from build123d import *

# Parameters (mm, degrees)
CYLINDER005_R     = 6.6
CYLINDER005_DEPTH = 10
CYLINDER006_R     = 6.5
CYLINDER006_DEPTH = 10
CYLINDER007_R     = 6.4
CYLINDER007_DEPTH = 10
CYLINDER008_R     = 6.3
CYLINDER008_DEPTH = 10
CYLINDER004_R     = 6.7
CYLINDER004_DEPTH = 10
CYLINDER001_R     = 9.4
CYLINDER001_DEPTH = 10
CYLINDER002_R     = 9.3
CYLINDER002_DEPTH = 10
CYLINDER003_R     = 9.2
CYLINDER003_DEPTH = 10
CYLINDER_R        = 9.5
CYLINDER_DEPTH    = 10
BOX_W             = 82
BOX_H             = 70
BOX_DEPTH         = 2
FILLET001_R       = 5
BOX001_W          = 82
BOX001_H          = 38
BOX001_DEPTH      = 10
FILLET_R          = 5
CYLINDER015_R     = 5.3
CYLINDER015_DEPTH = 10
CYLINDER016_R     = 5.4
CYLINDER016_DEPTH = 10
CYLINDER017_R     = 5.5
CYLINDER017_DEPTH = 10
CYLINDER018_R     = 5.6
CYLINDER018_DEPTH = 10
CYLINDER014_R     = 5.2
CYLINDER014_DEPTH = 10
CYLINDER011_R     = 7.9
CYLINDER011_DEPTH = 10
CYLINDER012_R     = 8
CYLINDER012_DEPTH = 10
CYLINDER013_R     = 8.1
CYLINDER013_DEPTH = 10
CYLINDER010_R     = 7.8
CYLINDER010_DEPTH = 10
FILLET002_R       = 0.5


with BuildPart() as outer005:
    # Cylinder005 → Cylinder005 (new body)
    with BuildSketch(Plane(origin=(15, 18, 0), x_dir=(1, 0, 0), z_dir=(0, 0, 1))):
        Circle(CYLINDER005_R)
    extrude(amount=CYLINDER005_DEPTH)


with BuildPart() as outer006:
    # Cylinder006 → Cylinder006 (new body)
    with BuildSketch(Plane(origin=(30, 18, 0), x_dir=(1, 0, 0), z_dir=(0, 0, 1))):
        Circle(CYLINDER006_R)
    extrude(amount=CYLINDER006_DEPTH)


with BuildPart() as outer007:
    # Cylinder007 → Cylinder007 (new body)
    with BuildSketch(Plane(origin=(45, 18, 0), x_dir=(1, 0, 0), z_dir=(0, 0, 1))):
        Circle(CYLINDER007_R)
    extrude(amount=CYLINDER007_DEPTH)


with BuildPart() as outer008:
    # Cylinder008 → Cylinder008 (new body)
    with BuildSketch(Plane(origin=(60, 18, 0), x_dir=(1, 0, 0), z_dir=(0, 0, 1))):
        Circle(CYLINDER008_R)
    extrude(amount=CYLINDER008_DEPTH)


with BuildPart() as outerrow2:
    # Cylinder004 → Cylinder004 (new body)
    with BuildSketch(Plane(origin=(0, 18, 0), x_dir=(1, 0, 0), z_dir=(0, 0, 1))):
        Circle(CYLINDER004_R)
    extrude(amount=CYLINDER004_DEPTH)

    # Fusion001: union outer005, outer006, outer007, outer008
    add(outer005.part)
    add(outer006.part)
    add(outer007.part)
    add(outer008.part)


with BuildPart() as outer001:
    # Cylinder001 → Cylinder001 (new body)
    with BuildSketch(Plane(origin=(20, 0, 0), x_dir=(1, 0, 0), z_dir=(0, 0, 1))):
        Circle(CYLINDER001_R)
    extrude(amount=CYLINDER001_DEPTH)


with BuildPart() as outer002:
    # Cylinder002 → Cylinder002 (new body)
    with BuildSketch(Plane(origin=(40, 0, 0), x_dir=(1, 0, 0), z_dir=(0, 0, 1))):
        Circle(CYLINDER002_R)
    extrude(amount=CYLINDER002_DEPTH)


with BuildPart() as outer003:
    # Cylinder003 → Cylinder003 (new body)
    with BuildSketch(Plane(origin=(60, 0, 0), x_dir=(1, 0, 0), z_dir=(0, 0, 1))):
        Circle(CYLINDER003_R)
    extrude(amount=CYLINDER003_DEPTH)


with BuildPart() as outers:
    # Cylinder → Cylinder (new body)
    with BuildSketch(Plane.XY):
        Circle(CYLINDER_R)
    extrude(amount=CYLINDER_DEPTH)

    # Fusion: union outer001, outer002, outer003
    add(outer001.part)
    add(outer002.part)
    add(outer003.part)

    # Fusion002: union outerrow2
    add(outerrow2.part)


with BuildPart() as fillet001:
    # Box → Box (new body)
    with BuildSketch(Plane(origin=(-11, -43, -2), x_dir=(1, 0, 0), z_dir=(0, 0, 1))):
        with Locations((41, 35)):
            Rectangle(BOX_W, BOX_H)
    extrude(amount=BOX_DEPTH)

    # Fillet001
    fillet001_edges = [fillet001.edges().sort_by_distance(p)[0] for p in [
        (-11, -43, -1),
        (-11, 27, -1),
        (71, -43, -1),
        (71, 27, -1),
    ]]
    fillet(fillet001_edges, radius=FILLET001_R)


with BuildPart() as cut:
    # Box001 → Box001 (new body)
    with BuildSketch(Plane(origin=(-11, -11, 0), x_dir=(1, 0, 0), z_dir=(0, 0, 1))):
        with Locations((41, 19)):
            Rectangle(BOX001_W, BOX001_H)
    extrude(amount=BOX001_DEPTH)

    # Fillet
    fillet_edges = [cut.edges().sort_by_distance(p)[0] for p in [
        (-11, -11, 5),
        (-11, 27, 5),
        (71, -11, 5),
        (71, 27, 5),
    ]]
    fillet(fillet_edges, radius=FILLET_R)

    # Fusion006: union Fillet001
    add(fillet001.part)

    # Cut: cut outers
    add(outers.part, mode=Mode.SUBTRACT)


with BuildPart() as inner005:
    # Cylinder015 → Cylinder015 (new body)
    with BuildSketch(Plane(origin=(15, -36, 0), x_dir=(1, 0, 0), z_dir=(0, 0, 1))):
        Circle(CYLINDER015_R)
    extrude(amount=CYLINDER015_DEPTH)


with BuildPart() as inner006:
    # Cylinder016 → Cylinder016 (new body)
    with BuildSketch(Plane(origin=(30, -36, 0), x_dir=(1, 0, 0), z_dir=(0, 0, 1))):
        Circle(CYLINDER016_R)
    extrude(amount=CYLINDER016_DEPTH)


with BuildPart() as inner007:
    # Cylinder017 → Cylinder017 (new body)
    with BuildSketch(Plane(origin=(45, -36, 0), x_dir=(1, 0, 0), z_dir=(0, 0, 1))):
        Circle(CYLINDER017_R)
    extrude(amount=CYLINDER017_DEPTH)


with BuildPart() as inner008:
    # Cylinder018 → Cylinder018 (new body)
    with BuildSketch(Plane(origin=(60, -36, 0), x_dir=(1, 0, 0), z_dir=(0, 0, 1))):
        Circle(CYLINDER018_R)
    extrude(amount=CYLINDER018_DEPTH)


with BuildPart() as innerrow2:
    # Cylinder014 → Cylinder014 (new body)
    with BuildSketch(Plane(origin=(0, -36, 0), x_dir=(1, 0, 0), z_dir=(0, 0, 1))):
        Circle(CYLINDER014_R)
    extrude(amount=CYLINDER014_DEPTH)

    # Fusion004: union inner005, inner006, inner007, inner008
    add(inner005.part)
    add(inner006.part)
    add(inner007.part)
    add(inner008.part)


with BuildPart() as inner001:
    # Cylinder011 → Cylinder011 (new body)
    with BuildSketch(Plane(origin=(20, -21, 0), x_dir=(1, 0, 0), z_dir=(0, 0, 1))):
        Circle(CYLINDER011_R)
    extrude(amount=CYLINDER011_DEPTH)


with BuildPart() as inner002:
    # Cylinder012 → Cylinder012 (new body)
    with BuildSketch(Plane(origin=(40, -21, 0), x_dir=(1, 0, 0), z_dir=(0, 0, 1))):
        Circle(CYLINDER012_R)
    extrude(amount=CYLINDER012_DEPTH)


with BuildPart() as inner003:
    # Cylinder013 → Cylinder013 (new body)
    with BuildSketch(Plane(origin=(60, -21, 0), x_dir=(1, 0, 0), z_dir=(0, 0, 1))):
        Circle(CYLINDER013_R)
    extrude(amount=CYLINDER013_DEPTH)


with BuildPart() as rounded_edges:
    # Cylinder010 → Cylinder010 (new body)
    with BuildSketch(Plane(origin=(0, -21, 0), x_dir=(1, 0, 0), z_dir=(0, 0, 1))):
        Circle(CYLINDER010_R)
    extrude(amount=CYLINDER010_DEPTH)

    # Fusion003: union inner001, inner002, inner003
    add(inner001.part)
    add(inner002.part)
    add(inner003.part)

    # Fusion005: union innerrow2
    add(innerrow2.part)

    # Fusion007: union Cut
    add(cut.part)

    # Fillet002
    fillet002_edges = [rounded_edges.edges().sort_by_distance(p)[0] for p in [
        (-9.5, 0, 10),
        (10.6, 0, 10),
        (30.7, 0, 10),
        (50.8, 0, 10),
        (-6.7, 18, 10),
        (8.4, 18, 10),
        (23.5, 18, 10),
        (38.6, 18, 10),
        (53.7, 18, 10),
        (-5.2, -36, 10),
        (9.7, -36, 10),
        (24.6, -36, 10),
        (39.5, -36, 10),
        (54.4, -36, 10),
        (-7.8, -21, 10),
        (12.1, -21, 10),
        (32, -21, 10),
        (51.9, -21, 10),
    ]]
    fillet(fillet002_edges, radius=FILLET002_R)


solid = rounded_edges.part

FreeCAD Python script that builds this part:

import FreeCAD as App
import Part
import Sketcher


def edges_at(feature, points):
    """Names of the edges that pass closest to the given points."""
    edges = feature.Shape.Edges
    near = lambda p: min(range(len(edges)), key=lambda i: edges[i].distToShape(Part.Vertex(*p))[0])
    return sorted({f"Edge{near(p) + 1}" for p in points})


def add_polygon(sketch, points):
    """Adds a closed chain of lines whose ends are joined by coincident constraints."""
    first, n = sketch.GeometryCount, len(points)
    for a, b in zip(points, points[1:] + points[:1]):
        sketch.addGeometry(Part.LineSegment(App.Vector(*a, 0), App.Vector(*b, 0)), False)
    for i in range(n):
        sketch.addConstraint(Sketcher.Constraint("Coincident", first + i, 2, first + (i + 1) % n, 1))

doc = App.newDocument("Part")
body = doc.addObject("PartDesign::Body", "Body")

sketch1 = body.newObject("Sketcher::SketchObject", "Sketch")
sketch1.AttachmentSupport = (doc.getObject("XY_Plane"), [""])
sketch1.MapMode = "FlatFace"
sketch1.addGeometry(Part.Circle(App.Vector(15, 18, 0), App.Vector(0, 0, 1), 7), False)
sketch1.addConstraint([
    Sketcher.Constraint("Diameter", 0, 13.2),
    Sketcher.Constraint("DistanceX", -1, 1, 0, 3, 15.0),
    Sketcher.Constraint("DistanceY", -1, 1, 0, 3, 18.0),
])
pad1 = body.newObject("PartDesign::Pad", "Pad")
pad1.Profile = sketch1
pad1.Length = 10
body2 = doc.addObject("PartDesign::Body", "Body001")

sketch2 = body2.newObject("Sketcher::SketchObject", "Sketch001")
sketch2.AttachmentSupport = (doc.getObject("XY_Plane001"), [""])
sketch2.MapMode = "FlatFace"
sketch2.addGeometry(Part.Circle(App.Vector(30, 18, 0), App.Vector(0, 0, 1), 6), False)
sketch2.addConstraint([
    Sketcher.Constraint("Diameter", 0, 13.0),
    Sketcher.Constraint("DistanceX", -1, 1, 0, 3, 30.0),
    Sketcher.Constraint("DistanceY", -1, 1, 0, 3, 18.0),
])
pad2 = body2.newObject("PartDesign::Pad", "Pad001")
pad2.Profile = sketch2
pad2.Length = 10
body3 = doc.addObject("PartDesign::Body", "Body002")

sketch3 = body3.newObject("Sketcher::SketchObject", "Sketch002")
sketch3.AttachmentSupport = (doc.getObject("XY_Plane002"), [""])
sketch3.MapMode = "FlatFace"
sketch3.addGeometry(Part.Circle(App.Vector(45, 18, 0), App.Vector(0, 0, 1), 6), False)
sketch3.addConstraint([
    Sketcher.Constraint("Diameter", 0, 12.8),
    Sketcher.Constraint("DistanceX", -1, 1, 0, 3, 45.0),
    Sketcher.Constraint("DistanceY", -1, 1, 0, 3, 18.0),
])
pad3 = body3.newObject("PartDesign::Pad", "Pad002")
pad3.Profile = sketch3
pad3.Length = 10
body4 = doc.addObject("PartDesign::Body", "Body003")

sketch4 = body4.newObject("Sketcher::SketchObject", "Sketch003")
sketch4.AttachmentSupport = (doc.getObject("XY_Plane003"), [""])
sketch4.MapMode = "FlatFace"
sketch4.addGeometry(Part.Circle(App.Vector(60, 18, 0), App.Vector(0, 0, 1), 6), False)
sketch4.addConstraint([
    Sketcher.Constraint("Diameter", 0, 12.6),
    Sketcher.Constraint("DistanceX", -1, 1, 0, 3, 60.0),
    Sketcher.Constraint("DistanceY", -1, 1, 0, 3, 18.0),
])
pad4 = body4.newObject("PartDesign::Pad", "Pad003")
pad4.Profile = sketch4
pad4.Length = 10
body5 = doc.addObject("PartDesign::Body", "Body004")
body5.AllowCompound = True

sketch5 = body5.newObject("Sketcher::SketchObject", "Sketch004")
sketch5.AttachmentSupport = (doc.getObject("XY_Plane004"), [""])
sketch5.MapMode = "FlatFace"
sketch5.addGeometry(Part.Circle(App.Vector(0, 18, 0), App.Vector(0, 0, 1), 7), False)
sketch5.addConstraint([
    Sketcher.Constraint("PointOnObject", 0, 3, -2),
    Sketcher.Constraint("Diameter", 0, 13.4),
    Sketcher.Constraint("DistanceY", -1, 1, 0, 3, 18.0),
])
pad5 = body5.newObject("PartDesign::Pad", "Pad004")
pad5.Profile = sketch5
pad5.Length = 10
doc.recompute()

boolean = body5.newObject("PartDesign::Boolean", "Boolean")
boolean.Type = "Fuse"
boolean.addObjects([body])
doc.recompute()

boolean2 = body5.newObject("PartDesign::Boolean", "Boolean001")
boolean2.Type = "Fuse"
boolean2.addObjects([body2])
doc.recompute()

boolean3 = body5.newObject("PartDesign::Boolean", "Boolean002")
boolean3.Type = "Fuse"
boolean3.addObjects([body3])
doc.recompute()

boolean4 = body5.newObject("PartDesign::Boolean", "Boolean003")
boolean4.Type = "Fuse"
boolean4.addObjects([body4])
body6 = doc.addObject("PartDesign::Body", "Body005")

sketch6 = body6.newObject("Sketcher::SketchObject", "Sketch005")
sketch6.AttachmentSupport = (doc.getObject("XY_Plane005"), [""])
sketch6.MapMode = "FlatFace"
sketch6.addGeometry(Part.Circle(App.Vector(20, 0, 0), App.Vector(0, 0, 1), 9), False)
sketch6.addConstraint([
    Sketcher.Constraint("PointOnObject", 0, 3, -1),
    Sketcher.Constraint("Diameter", 0, 18.8),
    Sketcher.Constraint("DistanceX", -1, 1, 0, 3, 20.0),
])
pad6 = body6.newObject("PartDesign::Pad", "Pad005")
pad6.Profile = sketch6
pad6.Length = 10
body7 = doc.addObject("PartDesign::Body", "Body006")

sketch7 = body7.newObject("Sketcher::SketchObject", "Sketch006")
sketch7.AttachmentSupport = (doc.getObject("XY_Plane006"), [""])
sketch7.MapMode = "FlatFace"
sketch7.addGeometry(Part.Circle(App.Vector(40, 0, 0), App.Vector(0, 0, 1), 9), False)
sketch7.addConstraint([
    Sketcher.Constraint("PointOnObject", 0, 3, -1),
    Sketcher.Constraint("Diameter", 0, 18.6),
    Sketcher.Constraint("DistanceX", -1, 1, 0, 3, 40.0),
])
pad7 = body7.newObject("PartDesign::Pad", "Pad006")
pad7.Profile = sketch7
pad7.Length = 10
body8 = doc.addObject("PartDesign::Body", "Body007")

sketch8 = body8.newObject("Sketcher::SketchObject", "Sketch007")
sketch8.AttachmentSupport = (doc.getObject("XY_Plane007"), [""])
sketch8.MapMode = "FlatFace"
sketch8.addGeometry(Part.Circle(App.Vector(60, 0, 0), App.Vector(0, 0, 1), 9), False)
sketch8.addConstraint([
    Sketcher.Constraint("PointOnObject", 0, 3, -1),
    Sketcher.Constraint("Diameter", 0, 18.4),
    Sketcher.Constraint("DistanceX", -1, 1, 0, 3, 60.0),
])
pad8 = body8.newObject("PartDesign::Pad", "Pad007")
pad8.Profile = sketch8
pad8.Length = 10
body9 = doc.addObject("PartDesign::Body", "Body008")
body9.AllowCompound = True

sketch9 = body9.newObject("Sketcher::SketchObject", "Sketch008")
sketch9.AttachmentSupport = (doc.getObject("XY_Plane008"), [""])
sketch9.MapMode = "FlatFace"
sketch9.addGeometry(Part.Circle(App.Vector(0, 0, 0), App.Vector(0, 0, 1), 10), False)
sketch9.addConstraint([
    Sketcher.Constraint("Coincident", 0, 3, -1, 1),
    Sketcher.Constraint("Diameter", 0, 19.0),
])
pad9 = body9.newObject("PartDesign::Pad", "Pad008")
pad9.Profile = sketch9
pad9.Length = 10
doc.recompute()

boolean5 = body9.newObject("PartDesign::Boolean", "Boolean004")
boolean5.Type = "Fuse"
boolean5.addObjects([body6])
doc.recompute()

boolean6 = body9.newObject("PartDesign::Boolean", "Boolean005")
boolean6.Type = "Fuse"
boolean6.addObjects([body7])
doc.recompute()

boolean7 = body9.newObject("PartDesign::Boolean", "Boolean006")
boolean7.Type = "Fuse"
boolean7.addObjects([body8])
doc.recompute()

boolean8 = body9.newObject("PartDesign::Boolean", "Boolean007")
boolean8.Type = "Fuse"
boolean8.addObjects([body5])
body10 = doc.addObject("PartDesign::Body", "Body009")

sketch10 = body10.newObject("Sketcher::SketchObject", "Sketch009")
sketch10.AttachmentSupport = (doc.getObject("XY_Plane009"), [""])
sketch10.MapMode = "FlatFace"
sketch10.AttachmentOffset = App.Placement(App.Vector(0, 0, -2), App.Rotation())
add_polygon(sketch10, [(-11, 27), (-11, -43), (71, -43), (71, 27)])
sketch10.addConstraint([
    Sketcher.Constraint("Vertical", 0),
    Sketcher.Constraint("Horizontal", 1),
    Sketcher.Constraint("Vertical", 2),
    Sketcher.Constraint("Horizontal", 3),
    Sketcher.Constraint("DistanceX", 1, 1, 1, 2, 82.0),
    Sketcher.Constraint("DistanceY", 0, 2, 0, 1, 70.0),
    Sketcher.Constraint("DistanceX", 0, 2, -1, 1, 11.0),
    Sketcher.Constraint("DistanceY", 0, 2, -1, 1, 43.0),
])
pad10 = body10.newObject("PartDesign::Pad", "Pad009")
pad10.Profile = sketch10
pad10.Length = 2
doc.recompute()

fillet = body10.newObject("PartDesign::Fillet", "Fillet")
fillet.Base = (pad10, edges_at(pad10, [
    (-11, -43, -1),
    (-11, 27, -1),
    (71, -43, -1),
    (71, 27, -1),
]))
fillet.Radius = 5
body11 = doc.addObject("PartDesign::Body", "Body010")

sketch11 = body11.newObject("Sketcher::SketchObject", "Sketch010")
sketch11.AttachmentSupport = (doc.getObject("XY_Plane010"), [""])
sketch11.MapMode = "FlatFace"
add_polygon(sketch11, [(-11, 27), (-11, -11), (71, -11), (71, 27)])
sketch11.addConstraint([
    Sketcher.Constraint("Vertical", 0),
    Sketcher.Constraint("Horizontal", 1),
    Sketcher.Constraint("Vertical", 2),
    Sketcher.Constraint("Horizontal", 3),
    Sketcher.Constraint("DistanceX", 1, 1, 1, 2, 82.0),
    Sketcher.Constraint("DistanceY", 0, 2, 0, 1, 38.0),
    Sketcher.Constraint("DistanceX", 0, 2, -1, 1, 11.0),
    Sketcher.Constraint("DistanceY", 0, 2, -1, 1, 11.0),
])
pad11 = body11.newObject("PartDesign::Pad", "Pad010")
pad11.Profile = sketch11
pad11.Length = 10
doc.recompute()

fillet2 = body11.newObject("PartDesign::Fillet", "Fillet001")
fillet2.Base = (pad11, edges_at(pad11, [
    (-11, -11, 5),
    (-11, 27, 5),
    (71, -11, 5),
    (71, 27, 5),
]))
fillet2.Radius = 5
doc.recompute()

boolean9 = body11.newObject("PartDesign::Boolean", "Boolean008")
boolean9.Type = "Fuse"
boolean9.addObjects([body10])
doc.recompute()

boolean10 = body11.newObject("PartDesign::Boolean", "Boolean009")
boolean10.Type = "Cut"
boolean10.addObjects([body9])
body12 = doc.addObject("PartDesign::Body", "Body011")

sketch12 = body12.newObject("Sketcher::SketchObject", "Sketch011")
sketch12.AttachmentSupport = (doc.getObject("XY_Plane011"), [""])
sketch12.MapMode = "FlatFace"
sketch12.addGeometry(Part.Circle(App.Vector(15, -36, 0), App.Vector(0, 0, 1), 5), False)
sketch12.addConstraint([
    Sketcher.Constraint("Diameter", 0, 10.6),
    Sketcher.Constraint("DistanceX", -1, 1, 0, 3, 15.0),
    Sketcher.Constraint("DistanceY", 0, 3, -1, 1, 36.0),
])
pad12 = body12.newObject("PartDesign::Pad", "Pad011")
pad12.Profile = sketch12
pad12.Length = 10
body13 = doc.addObject("PartDesign::Body", "Body012")

sketch13 = body13.newObject("Sketcher::SketchObject", "Sketch012")
sketch13.AttachmentSupport = (doc.getObject("XY_Plane012"), [""])
sketch13.MapMode = "FlatFace"
sketch13.addGeometry(Part.Circle(App.Vector(30, -36, 0), App.Vector(0, 0, 1), 5), False)
sketch13.addConstraint([
    Sketcher.Constraint("Diameter", 0, 10.8),
    Sketcher.Constraint("DistanceX", -1, 1, 0, 3, 30.0),
    Sketcher.Constraint("DistanceY", 0, 3, -1, 1, 36.0),
])
pad13 = body13.newObject("PartDesign::Pad", "Pad012")
pad13.Profile = sketch13
pad13.Length = 10
body14 = doc.addObject("PartDesign::Body", "Body013")

sketch14 = body14.newObject("Sketcher::SketchObject", "Sketch013")
sketch14.AttachmentSupport = (doc.getObject("XY_Plane013"), [""])
sketch14.MapMode = "FlatFace"
sketch14.addGeometry(Part.Circle(App.Vector(45, -36, 0), App.Vector(0, 0, 1), 6), False)
sketch14.addConstraint([
    Sketcher.Constraint("Diameter", 0, 11.0),
    Sketcher.Constraint("DistanceX", -1, 1, 0, 3, 45.0),
    Sketcher.Constraint("DistanceY", 0, 3, -1, 1, 36.0),
])
pad14 = body14.newObject("PartDesign::Pad", "Pad013")
pad14.Profile = sketch14
pad14.Length = 10
body15 = doc.addObject("PartDesign::Body", "Body014")

sketch15 = body15.newObject("Sketcher::SketchObject", "Sketch014")
sketch15.AttachmentSupport = (doc.getObject("XY_Plane014"), [""])
sketch15.MapMode = "FlatFace"
sketch15.addGeometry(Part.Circle(App.Vector(60, -36, 0), App.Vector(0, 0, 1), 6), False)
sketch15.addConstraint([
    Sketcher.Constraint("Diameter", 0, 11.2),
    Sketcher.Constraint("DistanceX", -1, 1, 0, 3, 60.0),
    Sketcher.Constraint("DistanceY", 0, 3, -1, 1, 36.0),
])
pad15 = body15.newObject("PartDesign::Pad", "Pad014")
pad15.Profile = sketch15
pad15.Length = 10
body16 = doc.addObject("PartDesign::Body", "Body015")
body16.AllowCompound = True

sketch16 = body16.newObject("Sketcher::SketchObject", "Sketch015")
sketch16.AttachmentSupport = (doc.getObject("XY_Plane015"), [""])
sketch16.MapMode = "FlatFace"
sketch16.addGeometry(Part.Circle(App.Vector(0, -36, 0), App.Vector(0, 0, 1), 5), False)
sketch16.addConstraint([
    Sketcher.Constraint("PointOnObject", 0, 3, -2),
    Sketcher.Constraint("Diameter", 0, 10.4),
    Sketcher.Constraint("DistanceY", 0, 3, -1, 1, 36.0),
])
pad16 = body16.newObject("PartDesign::Pad", "Pad015")
pad16.Profile = sketch16
pad16.Length = 10
doc.recompute()

boolean11 = body16.newObject("PartDesign::Boolean", "Boolean010")
boolean11.Type = "Fuse"
boolean11.addObjects([body12])
doc.recompute()

boolean12 = body16.newObject("PartDesign::Boolean", "Boolean011")
boolean12.Type = "Fuse"
boolean12.addObjects([body13])
doc.recompute()

boolean13 = body16.newObject("PartDesign::Boolean", "Boolean012")
boolean13.Type = "Fuse"
boolean13.addObjects([body14])
doc.recompute()

boolean14 = body16.newObject("PartDesign::Boolean", "Boolean013")
boolean14.Type = "Fuse"
boolean14.addObjects([body15])
body17 = doc.addObject("PartDesign::Body", "Body016")

sketch17 = body17.newObject("Sketcher::SketchObject", "Sketch016")
sketch17.AttachmentSupport = (doc.getObject("XY_Plane016"), [""])
sketch17.MapMode = "FlatFace"
sketch17.addGeometry(Part.Circle(App.Vector(20, -21, 0), App.Vector(0, 0, 1), 8), False)
sketch17.addConstraint([
    Sketcher.Constraint("Diameter", 0, 15.8),
    Sketcher.Constraint("DistanceX", -1, 1, 0, 3, 20.0),
    Sketcher.Constraint("DistanceY", 0, 3, -1, 1, 21.0),
])
pad17 = body17.newObject("PartDesign::Pad", "Pad016")
pad17.Profile = sketch17
pad17.Length = 10
body18 = doc.addObject("PartDesign::Body", "Body017")

sketch18 = body18.newObject("Sketcher::SketchObject", "Sketch017")
sketch18.AttachmentSupport = (doc.getObject("XY_Plane017"), [""])
sketch18.MapMode = "FlatFace"
sketch18.addGeometry(Part.Circle(App.Vector(40, -21, 0), App.Vector(0, 0, 1), 8), False)
sketch18.addConstraint([
    Sketcher.Constraint("Diameter", 0, 16.0),
    Sketcher.Constraint("DistanceX", -1, 1, 0, 3, 40.0),
    Sketcher.Constraint("DistanceY", 0, 3, -1, 1, 21.0),
])
pad18 = body18.newObject("PartDesign::Pad", "Pad017")
pad18.Profile = sketch18
pad18.Length = 10
body19 = doc.addObject("PartDesign::Body", "Body018")

sketch19 = body19.newObject("Sketcher::SketchObject", "Sketch018")
sketch19.AttachmentSupport = (doc.getObject("XY_Plane018"), [""])
sketch19.MapMode = "FlatFace"
sketch19.addGeometry(Part.Circle(App.Vector(60, -21, 0), App.Vector(0, 0, 1), 8), False)
sketch19.addConstraint([
    Sketcher.Constraint("Diameter", 0, 16.2),
    Sketcher.Constraint("DistanceX", -1, 1, 0, 3, 60.0),
    Sketcher.Constraint("DistanceY", 0, 3, -1, 1, 21.0),
])
pad19 = body19.newObject("PartDesign::Pad", "Pad018")
pad19.Profile = sketch19
pad19.Length = 10
body20 = doc.addObject("PartDesign::Body", "Body019")
body20.AllowCompound = True

sketch20 = body20.newObject("Sketcher::SketchObject", "Sketch019")
sketch20.AttachmentSupport = (doc.getObject("XY_Plane019"), [""])
sketch20.MapMode = "FlatFace"
sketch20.addGeometry(Part.Circle(App.Vector(0, -21, 0), App.Vector(0, 0, 1), 8), False)
sketch20.addConstraint([
    Sketcher.Constraint("PointOnObject", 0, 3, -2),
    Sketcher.Constraint("Diameter", 0, 15.6),
    Sketcher.Constraint("DistanceY", 0, 3, -1, 1, 21.0),
])
pad20 = body20.newObject("PartDesign::Pad", "Pad019")
pad20.Profile = sketch20
pad20.Length = 10
doc.recompute()

boolean15 = body20.newObject("PartDesign::Boolean", "Boolean014")
boolean15.Type = "Fuse"
boolean15.addObjects([body17])
doc.recompute()

boolean16 = body20.newObject("PartDesign::Boolean", "Boolean015")
boolean16.Type = "Fuse"
boolean16.addObjects([body18])
doc.recompute()

boolean17 = body20.newObject("PartDesign::Boolean", "Boolean016")
boolean17.Type = "Fuse"
boolean17.addObjects([body19])
doc.recompute()

boolean18 = body20.newObject("PartDesign::Boolean", "Boolean017")
boolean18.Type = "Fuse"
boolean18.addObjects([body16])
doc.recompute()

boolean19 = body20.newObject("PartDesign::Boolean", "Boolean018")
boolean19.Type = "Fuse"
boolean19.addObjects([body11])
doc.recompute()

fillet3 = body20.newObject("PartDesign::Fillet", "Fillet002")
fillet3.Base = (boolean19, edges_at(boolean19, [
    (-9.5, 0, 10),
    (10.6, 0, 10),
    (30.7, 0, 10),
    (50.8, 0, 10),
    (-6.7, 18, 10),
    (8.4, 18, 10),
    (23.5, 18, 10),
    (38.6, 18, 10),
    (53.7, 18, 10),
    (-5.2, -36, 10),
    (9.7, -36, 10),
    (24.6, -36, 10),
    (39.5, -36, 10),
    (54.4, -36, 10),
    (-7.8, -21, 10),
    (12.1, -21, 10),
    (32, -21, 10),
    (51.9, -21, 10),
]))
fillet3.Radius = 0.5

doc.recompute()
